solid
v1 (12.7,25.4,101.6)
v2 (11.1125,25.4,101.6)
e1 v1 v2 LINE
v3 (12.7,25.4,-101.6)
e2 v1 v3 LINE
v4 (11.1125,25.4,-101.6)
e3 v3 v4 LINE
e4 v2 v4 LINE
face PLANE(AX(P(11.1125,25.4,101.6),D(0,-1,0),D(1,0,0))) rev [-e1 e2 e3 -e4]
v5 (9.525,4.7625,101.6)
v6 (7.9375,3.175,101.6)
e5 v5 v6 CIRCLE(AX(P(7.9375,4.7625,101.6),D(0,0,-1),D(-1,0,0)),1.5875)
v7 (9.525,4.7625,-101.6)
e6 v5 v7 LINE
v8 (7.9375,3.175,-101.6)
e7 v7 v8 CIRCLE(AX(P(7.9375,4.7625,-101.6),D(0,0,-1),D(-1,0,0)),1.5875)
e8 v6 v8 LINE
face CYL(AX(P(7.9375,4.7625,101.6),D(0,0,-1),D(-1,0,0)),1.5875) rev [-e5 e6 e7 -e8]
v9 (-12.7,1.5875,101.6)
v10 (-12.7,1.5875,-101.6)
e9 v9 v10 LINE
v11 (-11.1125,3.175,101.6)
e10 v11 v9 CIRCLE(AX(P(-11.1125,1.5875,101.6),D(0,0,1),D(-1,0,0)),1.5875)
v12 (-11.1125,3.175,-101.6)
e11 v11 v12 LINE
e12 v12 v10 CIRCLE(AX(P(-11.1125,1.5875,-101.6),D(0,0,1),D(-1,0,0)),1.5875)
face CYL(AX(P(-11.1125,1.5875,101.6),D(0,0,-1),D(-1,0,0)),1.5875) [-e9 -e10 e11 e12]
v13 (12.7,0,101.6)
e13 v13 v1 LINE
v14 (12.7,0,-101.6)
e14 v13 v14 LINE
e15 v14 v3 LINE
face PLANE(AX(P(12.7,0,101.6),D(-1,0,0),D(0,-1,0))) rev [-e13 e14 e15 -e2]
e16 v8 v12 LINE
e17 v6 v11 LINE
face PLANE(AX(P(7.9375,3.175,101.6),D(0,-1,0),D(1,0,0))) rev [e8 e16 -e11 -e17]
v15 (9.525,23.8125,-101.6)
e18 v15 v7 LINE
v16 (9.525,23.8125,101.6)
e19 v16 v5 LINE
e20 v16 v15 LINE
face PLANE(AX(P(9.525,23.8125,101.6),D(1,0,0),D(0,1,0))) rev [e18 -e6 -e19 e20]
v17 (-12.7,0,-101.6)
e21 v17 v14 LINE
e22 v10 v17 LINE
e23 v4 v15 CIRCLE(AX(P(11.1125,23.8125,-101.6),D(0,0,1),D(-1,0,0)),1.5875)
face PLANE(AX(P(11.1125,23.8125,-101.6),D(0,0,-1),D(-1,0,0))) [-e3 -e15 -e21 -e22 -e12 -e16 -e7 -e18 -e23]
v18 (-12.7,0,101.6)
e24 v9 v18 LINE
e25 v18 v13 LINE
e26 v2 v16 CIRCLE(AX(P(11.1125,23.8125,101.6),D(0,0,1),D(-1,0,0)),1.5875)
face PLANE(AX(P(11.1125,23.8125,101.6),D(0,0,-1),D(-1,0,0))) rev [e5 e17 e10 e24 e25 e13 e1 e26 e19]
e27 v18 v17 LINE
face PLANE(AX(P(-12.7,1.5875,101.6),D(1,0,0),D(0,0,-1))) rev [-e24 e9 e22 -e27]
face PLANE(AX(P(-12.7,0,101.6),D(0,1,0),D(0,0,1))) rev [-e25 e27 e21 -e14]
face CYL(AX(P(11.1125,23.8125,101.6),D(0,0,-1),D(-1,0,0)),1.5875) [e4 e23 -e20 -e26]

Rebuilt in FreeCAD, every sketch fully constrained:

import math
import FreeCAD as App
import Part
import Sketcher

V = App.Vector
Q = App.Units.Quantity

doc = App.newDocument("Part")
body = doc.addObject("PartDesign::Body", "Body")

sketch1 = body.newObject("Sketcher::SketchObject", "Sketch")
sketch1.AttachmentSupport = (doc.getObject("XY_Plane"), [""])
sketch1.MapMode = "FlatFace"
sketch1.addGeometry(Part.LineSegment(V(-12.7, 0, 0), V(12.7, 0, 0)), False)
sketch1.addGeometry(Part.LineSegment(V(12.7, 0, 0), V(12.7, 25.4, 0)), False)
sketch1.addGeometry(Part.LineSegment(V(12.7, 25.4, 0), V(11.1, 25.4, 0)), False)
sketch1.addGeometry(Part.ArcOfCircle(Part.Circle(V(11.1, 23.8, 0), V(0, 0, 1), 1.6), math.radians(90), math.radians(180)), False)
sketch1.addGeometry(Part.LineSegment(V(9.5, 23.8, 0), V(9.5, 4.8, 0)), False)
sketch1.addGeometry(Part.ArcOfCircle(Part.Circle(V(7.9, 4.8, 0), V(0, 0, 1), 1.6), math.radians(-90), math.radians(0)), False)
sketch1.addGeometry(Part.LineSegment(V(7.9, 3.2, 0), V(-11.1, 3.2, 0)), False)
sketch1.addGeometry(Part.ArcOfCircle(Part.Circle(V(-11.1, 1.6, 0), V(0, 0, 1), 1.6), math.radians(90), math.radians(180)), False)
sketch1.addGeometry(Part.LineSegment(V(-12.7, 1.6, 0), V(-12.7, 0, 0)), False)
sketch1.addConstraint(Sketcher.Constraint("Coincident", 0, 2, 1, 1))
sketch1.addConstraint(Sketcher.Constraint("Coincident", 1, 2, 2, 1))
sketch1.addConstraint(Sketcher.Constraint("Tangent", 2, 2, 3, 1))
sketch1.addConstraint(Sketcher.Constraint("Tangent", 3, 2, 4, 1))
sketch1.addConstraint(Sketcher.Constraint("Tangent", 4, 2, 5, 2))
sketch1.addConstraint(Sketcher.Constraint("Tangent", 5, 1, 6, 1))
sketch1.addConstraint(Sketcher.Constraint("Tangent", 6, 2, 7, 1))
sketch1.addConstraint(Sketcher.Constraint("Tangent", 7, 2, 8, 1))
sketch1.addConstraint(Sketcher.Constraint("Coincident", 8, 2, 0, 1))
sketch1.addConstraint(Sketcher.Constraint("Horizontal", 0))
sketch1.addConstraint(Sketcher.Constraint("Vertical", 1))
sketch1.addConstraint(Sketcher.Constraint("Horizontal", 2))
sketch1.addConstraint(Sketcher.Constraint("Vertical", 4))
sketch1.addConstraint(Sketcher.Constraint("Horizontal", 6))
sketch1.addConstraint(Sketcher.Constraint("Vertical", 8))
sketch1.addConstraint(Sketcher.Constraint("Equal", 3, 5))
sketch1.addConstraint(Sketcher.Constraint("Equal", 5, 7))
sketch1.addConstraint(Sketcher.Constraint("Symmetric", 0, 2, 8, 2, -1, 1))
sketch1.addConstraint(Sketcher.Constraint("Equal", 0, 1))
sketch1.addConstraint(Sketcher.Constraint("Equal", 6, 4))
sketch1.addConstraint(Sketcher.Constraint("DistanceX", 0, 1, 0, 2, Q("1 in")))
sketch1.addConstraint(Sketcher.Constraint("Radius", 3, Q("0.0625 in")))
sketch1.addConstraint(Sketcher.Constraint("DistanceX", 6, 2, 6, 1, Q("0.75 in")))
pad1 = body.newObject("PartDesign::Pad", "Pad")
pad1.Profile = sketch1
pad1.Length = Q("8 in")
pad1.Midplane = True

doc.recompute()
